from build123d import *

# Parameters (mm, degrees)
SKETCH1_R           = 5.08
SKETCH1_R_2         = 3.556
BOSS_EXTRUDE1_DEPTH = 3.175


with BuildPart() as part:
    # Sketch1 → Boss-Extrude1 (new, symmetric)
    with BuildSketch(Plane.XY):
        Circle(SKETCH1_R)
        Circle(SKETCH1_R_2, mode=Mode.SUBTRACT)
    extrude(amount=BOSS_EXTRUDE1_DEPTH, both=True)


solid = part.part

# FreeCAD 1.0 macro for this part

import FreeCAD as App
import Part
import Sketcher
from FreeCAD import Vector
Q = App.Units.Quantity

doc = App.newDocument("Part")
body = doc.addObject("PartDesign::Body", "Body")

# Sketch on XY plane
sketch1 = body.newObject("Sketcher::SketchObject", "Sketch")
sketch1.AttachmentSupport = (doc.getObject("XY_Plane"), [""])
sketch1.MapMode = "FlatFace"
sketch1.addGeometry([
    Part.Circle(Vector(0, 0, 0), Vector(0, 0, 1), 5.1),
    Part.Circle(Vector(0, 0, 0), Vector(0, 0, 1), 3.6),
], False)
sketch1.addConstraint([
    Sketcher.Constraint("Coincident", 0, 3, -1, 1),
    Sketcher.Constraint("Coincident", 1, 3, -1, 1),
    Sketcher.Constraint("Diameter", 0, Q("0.4 in")),
    Sketcher.Constraint("Diameter", 1, Q("0.28 in")),
])
pad1 = body.newObject("PartDesign::Pad", "Pad")
pad1.Profile = sketch1
pad1.Length = Q("0.25 in")
pad1.Midplane = True

doc.recompute()
